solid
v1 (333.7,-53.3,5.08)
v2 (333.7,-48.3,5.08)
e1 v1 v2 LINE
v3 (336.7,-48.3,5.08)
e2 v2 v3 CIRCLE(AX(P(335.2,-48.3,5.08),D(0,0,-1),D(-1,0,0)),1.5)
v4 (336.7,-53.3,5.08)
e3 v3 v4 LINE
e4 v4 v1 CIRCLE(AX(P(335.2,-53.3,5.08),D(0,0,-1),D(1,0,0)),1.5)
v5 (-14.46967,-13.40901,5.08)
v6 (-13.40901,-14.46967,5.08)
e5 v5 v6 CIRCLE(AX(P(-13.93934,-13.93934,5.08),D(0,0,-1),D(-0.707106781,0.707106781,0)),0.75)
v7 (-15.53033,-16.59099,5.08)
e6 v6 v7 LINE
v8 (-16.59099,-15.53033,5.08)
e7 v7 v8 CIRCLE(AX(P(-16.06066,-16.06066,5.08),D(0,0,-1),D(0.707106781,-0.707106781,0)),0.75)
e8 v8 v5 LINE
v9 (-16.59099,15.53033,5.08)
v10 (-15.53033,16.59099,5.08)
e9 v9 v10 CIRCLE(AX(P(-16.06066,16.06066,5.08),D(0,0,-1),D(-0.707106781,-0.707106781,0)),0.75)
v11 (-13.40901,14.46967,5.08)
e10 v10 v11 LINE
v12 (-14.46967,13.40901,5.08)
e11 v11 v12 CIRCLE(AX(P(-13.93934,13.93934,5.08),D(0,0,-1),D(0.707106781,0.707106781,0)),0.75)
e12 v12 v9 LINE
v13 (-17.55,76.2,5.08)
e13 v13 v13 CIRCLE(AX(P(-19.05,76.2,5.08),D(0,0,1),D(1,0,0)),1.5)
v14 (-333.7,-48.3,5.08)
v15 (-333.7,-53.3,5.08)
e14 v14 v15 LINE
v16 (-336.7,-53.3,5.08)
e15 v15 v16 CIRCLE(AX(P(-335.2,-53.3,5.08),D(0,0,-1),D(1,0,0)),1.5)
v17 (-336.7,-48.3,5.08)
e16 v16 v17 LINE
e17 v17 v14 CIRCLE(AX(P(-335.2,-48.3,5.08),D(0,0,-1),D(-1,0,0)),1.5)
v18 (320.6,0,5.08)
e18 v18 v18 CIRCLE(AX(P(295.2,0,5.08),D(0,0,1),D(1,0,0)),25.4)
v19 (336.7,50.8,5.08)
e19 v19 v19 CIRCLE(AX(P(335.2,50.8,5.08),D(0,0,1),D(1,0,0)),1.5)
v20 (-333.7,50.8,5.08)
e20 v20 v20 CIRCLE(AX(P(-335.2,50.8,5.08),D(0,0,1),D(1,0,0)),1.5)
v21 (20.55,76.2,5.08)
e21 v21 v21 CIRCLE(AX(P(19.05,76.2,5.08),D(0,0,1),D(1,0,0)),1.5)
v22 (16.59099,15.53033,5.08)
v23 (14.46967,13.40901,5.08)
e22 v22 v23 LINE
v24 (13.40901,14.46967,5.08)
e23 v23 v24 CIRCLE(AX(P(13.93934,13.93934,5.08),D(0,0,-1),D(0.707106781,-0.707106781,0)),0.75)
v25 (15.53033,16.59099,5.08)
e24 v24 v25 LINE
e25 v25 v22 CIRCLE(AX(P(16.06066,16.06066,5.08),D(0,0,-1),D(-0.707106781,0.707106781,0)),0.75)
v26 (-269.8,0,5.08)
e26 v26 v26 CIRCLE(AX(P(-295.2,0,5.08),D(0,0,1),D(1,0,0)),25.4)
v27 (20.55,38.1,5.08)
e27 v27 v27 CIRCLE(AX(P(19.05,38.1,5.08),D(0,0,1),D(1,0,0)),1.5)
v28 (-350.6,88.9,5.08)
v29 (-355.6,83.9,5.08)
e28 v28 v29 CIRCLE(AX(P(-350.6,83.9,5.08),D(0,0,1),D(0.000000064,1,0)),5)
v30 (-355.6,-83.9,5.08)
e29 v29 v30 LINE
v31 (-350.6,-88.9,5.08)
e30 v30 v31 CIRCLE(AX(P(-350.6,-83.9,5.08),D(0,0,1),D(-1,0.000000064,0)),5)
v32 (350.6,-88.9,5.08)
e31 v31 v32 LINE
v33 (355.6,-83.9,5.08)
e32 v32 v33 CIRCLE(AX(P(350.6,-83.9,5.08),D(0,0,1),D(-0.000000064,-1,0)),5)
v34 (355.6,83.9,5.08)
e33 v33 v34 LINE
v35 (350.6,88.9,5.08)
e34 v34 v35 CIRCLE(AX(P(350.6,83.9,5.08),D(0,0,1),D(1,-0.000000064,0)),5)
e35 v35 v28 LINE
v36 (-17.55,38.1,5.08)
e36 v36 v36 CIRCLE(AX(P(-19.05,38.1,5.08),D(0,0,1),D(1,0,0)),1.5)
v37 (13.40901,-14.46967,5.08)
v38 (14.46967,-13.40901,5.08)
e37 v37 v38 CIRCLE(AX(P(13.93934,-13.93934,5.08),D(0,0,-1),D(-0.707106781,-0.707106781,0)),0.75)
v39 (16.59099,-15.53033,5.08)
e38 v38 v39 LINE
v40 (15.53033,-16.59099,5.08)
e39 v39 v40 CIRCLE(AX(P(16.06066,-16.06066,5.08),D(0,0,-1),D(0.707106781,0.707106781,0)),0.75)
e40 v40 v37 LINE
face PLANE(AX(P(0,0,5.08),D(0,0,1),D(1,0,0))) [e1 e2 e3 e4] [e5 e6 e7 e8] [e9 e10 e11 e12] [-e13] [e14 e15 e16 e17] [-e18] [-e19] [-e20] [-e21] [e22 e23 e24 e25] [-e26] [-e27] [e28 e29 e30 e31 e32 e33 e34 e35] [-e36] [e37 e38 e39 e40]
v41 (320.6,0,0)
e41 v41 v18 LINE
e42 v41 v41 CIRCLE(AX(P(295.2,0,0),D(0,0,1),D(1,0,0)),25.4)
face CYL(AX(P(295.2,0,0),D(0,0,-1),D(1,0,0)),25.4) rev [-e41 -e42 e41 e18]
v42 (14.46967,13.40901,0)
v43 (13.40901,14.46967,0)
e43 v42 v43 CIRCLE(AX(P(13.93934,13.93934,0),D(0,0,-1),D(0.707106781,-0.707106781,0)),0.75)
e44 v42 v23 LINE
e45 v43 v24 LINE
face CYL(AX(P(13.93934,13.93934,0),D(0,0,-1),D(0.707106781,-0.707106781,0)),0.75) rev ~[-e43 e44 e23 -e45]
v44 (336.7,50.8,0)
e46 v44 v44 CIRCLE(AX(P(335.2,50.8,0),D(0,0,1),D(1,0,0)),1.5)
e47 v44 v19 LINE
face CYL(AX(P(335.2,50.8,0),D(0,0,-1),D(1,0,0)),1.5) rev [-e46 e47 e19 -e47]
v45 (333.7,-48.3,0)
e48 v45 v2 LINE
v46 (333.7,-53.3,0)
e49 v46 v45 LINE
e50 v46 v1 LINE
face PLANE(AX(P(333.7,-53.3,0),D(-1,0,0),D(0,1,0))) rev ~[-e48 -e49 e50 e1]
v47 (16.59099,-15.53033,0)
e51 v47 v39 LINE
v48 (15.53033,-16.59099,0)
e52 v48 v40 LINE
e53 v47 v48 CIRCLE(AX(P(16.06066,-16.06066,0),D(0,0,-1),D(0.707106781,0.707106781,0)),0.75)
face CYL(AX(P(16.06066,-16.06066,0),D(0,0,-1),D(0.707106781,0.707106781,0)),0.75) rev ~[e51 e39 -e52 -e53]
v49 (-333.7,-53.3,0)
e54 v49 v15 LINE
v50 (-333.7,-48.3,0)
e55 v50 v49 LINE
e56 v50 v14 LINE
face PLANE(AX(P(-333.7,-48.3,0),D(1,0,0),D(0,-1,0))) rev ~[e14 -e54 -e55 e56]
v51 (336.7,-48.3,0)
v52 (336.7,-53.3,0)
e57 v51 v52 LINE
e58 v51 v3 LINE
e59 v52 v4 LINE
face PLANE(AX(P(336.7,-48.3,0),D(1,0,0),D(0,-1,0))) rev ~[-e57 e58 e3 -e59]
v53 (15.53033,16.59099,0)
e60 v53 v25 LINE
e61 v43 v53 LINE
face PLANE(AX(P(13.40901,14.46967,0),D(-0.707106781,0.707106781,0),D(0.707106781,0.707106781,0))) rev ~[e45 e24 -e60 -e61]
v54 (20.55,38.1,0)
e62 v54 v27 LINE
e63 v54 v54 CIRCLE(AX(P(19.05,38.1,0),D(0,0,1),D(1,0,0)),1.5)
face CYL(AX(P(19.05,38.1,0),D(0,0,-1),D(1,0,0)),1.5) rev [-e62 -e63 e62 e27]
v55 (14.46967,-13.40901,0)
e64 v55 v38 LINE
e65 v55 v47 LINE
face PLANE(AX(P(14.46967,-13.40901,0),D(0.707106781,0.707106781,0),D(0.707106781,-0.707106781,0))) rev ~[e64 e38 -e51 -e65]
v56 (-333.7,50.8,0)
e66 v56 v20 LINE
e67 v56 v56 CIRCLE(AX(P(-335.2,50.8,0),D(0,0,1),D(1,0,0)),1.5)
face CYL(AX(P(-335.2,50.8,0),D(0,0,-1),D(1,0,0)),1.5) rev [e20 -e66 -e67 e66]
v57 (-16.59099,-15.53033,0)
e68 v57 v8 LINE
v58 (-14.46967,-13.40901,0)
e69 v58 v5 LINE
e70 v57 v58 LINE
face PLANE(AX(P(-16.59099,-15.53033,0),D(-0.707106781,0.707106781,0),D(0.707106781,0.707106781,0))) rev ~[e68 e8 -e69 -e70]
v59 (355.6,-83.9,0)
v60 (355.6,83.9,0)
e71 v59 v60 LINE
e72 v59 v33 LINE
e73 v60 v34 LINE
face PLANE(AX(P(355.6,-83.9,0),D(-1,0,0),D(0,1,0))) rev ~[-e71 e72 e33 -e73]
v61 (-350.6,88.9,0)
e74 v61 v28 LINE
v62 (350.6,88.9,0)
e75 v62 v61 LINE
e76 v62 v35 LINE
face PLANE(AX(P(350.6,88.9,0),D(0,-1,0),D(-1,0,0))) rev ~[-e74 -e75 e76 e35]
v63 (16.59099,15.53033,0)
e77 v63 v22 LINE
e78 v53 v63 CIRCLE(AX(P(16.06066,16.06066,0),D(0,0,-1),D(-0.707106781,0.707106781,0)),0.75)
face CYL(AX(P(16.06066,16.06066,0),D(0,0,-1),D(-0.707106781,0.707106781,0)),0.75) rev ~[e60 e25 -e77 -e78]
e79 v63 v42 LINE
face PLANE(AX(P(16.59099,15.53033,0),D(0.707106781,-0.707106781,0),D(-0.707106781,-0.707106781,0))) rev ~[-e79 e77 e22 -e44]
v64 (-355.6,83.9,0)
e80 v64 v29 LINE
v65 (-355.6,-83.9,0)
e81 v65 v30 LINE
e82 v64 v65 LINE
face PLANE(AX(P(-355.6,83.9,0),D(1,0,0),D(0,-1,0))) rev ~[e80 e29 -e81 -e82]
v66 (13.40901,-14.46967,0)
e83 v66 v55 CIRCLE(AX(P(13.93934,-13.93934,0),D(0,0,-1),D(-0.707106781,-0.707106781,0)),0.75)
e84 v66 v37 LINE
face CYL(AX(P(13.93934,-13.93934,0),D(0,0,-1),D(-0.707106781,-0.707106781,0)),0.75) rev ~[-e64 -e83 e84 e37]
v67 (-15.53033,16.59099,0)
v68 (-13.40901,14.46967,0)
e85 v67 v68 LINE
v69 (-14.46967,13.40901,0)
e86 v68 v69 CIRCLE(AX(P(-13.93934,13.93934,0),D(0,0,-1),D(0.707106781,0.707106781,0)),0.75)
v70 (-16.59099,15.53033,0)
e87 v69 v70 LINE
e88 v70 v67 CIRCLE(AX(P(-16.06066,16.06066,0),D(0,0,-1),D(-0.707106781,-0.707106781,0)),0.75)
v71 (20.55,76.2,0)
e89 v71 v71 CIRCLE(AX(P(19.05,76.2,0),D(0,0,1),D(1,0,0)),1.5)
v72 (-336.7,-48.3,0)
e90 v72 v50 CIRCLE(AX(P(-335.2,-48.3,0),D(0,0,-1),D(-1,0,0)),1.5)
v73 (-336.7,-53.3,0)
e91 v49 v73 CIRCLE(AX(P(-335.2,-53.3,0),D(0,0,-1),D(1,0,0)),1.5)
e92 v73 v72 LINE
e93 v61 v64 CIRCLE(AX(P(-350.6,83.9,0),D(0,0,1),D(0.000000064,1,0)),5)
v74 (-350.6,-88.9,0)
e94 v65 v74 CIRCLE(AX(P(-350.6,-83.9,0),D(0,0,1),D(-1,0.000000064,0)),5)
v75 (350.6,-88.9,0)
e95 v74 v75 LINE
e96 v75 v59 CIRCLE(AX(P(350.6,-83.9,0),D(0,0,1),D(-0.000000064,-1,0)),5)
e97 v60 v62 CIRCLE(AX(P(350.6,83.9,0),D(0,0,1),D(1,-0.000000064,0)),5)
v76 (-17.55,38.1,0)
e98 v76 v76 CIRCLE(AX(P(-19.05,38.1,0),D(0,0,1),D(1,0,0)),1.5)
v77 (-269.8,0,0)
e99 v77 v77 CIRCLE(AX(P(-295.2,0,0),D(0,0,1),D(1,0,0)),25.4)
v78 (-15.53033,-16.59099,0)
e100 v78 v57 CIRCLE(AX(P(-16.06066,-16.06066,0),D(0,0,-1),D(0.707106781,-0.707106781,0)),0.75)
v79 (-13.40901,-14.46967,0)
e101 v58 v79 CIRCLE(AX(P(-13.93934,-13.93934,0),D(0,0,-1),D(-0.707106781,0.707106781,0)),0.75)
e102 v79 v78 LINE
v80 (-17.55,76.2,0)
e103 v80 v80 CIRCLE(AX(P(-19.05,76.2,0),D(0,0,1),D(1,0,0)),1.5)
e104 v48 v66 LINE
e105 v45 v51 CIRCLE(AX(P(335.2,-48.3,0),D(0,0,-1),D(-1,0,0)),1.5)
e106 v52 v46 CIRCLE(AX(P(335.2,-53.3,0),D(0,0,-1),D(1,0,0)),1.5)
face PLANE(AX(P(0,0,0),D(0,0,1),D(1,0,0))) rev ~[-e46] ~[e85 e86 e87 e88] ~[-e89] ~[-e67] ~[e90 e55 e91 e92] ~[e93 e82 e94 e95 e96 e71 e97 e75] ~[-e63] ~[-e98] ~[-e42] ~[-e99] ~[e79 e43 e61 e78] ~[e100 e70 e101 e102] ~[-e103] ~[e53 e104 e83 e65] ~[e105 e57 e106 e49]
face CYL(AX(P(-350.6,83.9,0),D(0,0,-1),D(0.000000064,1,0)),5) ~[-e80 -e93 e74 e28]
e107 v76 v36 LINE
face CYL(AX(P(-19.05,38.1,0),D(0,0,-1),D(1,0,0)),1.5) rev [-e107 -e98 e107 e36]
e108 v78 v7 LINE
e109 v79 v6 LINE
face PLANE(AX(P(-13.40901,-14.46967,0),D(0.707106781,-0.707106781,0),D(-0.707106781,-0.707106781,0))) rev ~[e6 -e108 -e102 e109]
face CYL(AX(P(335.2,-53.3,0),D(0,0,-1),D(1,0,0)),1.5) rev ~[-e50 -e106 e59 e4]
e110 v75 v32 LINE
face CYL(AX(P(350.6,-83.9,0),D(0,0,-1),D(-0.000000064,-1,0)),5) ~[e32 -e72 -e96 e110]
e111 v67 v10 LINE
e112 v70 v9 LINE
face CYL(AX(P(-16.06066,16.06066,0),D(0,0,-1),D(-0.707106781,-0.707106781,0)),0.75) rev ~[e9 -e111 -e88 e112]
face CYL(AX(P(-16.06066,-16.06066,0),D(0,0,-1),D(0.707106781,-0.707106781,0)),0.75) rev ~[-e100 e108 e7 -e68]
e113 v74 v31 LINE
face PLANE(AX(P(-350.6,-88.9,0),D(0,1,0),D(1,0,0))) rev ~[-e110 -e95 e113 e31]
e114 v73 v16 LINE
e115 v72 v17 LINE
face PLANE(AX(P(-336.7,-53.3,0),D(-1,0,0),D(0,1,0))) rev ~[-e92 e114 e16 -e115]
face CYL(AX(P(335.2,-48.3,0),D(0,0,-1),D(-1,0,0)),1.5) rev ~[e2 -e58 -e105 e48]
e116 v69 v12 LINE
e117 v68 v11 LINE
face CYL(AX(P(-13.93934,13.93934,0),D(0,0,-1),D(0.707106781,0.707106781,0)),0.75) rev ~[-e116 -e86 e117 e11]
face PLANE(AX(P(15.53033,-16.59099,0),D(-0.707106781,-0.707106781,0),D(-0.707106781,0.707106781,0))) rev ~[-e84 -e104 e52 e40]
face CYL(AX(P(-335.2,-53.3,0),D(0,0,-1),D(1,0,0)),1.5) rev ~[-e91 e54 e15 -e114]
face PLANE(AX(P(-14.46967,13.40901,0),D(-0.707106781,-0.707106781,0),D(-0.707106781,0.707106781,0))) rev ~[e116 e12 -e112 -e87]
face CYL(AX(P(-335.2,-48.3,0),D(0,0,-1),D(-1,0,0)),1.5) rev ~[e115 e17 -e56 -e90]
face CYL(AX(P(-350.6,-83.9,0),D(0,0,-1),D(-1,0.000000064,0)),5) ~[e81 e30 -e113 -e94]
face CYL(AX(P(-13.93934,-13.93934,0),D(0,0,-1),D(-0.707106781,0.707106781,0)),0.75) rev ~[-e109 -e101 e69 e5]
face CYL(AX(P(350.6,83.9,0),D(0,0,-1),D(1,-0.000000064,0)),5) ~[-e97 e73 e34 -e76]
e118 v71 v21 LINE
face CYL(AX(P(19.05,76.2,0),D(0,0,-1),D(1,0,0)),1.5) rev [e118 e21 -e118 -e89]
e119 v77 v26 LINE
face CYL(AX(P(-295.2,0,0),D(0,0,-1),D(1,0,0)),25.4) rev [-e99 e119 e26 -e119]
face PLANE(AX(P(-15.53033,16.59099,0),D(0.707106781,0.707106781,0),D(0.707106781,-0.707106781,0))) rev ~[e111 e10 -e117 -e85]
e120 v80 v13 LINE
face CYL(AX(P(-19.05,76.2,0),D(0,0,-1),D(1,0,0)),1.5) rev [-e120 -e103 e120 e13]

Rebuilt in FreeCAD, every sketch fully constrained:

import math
import FreeCAD as App
import Part
import Sketcher
Q = App.Units.Quantity

doc = App.newDocument("Part")
body = doc.addObject("PartDesign::Body", "Body")

sketch1 = doc.addObject("Sketcher::SketchObject", "Sketch")
body.addObject(sketch1)
sketch1.AttachmentSupport = (doc.XY_Plane, [""])
sketch1.MapMode = "FlatFace"
sketch1.addGeometry([
    Part.ArcOfCircle(Part.Circle(App.Vector(350.6, 83.9, 0), App.Vector(0, 0, 1), 5), math.radians(0), math.radians(90)),
    Part.LineSegment(App.Vector(350.6, 88.9, 0), App.Vector(-350.6, 88.9, 0)),
    Part.ArcOfCircle(Part.Circle(App.Vector(-350.6, 83.9, 0), App.Vector(0, 0, 1), 5), math.radians(90), math.radians(180)),
    Part.LineSegment(App.Vector(-355.6, 83.9, 0), App.Vector(-355.6, -83.9, 0)),
    Part.ArcOfCircle(Part.Circle(App.Vector(-350.6, -83.9, 0), App.Vector(0, 0, 1), 5), math.radians(180), math.radians(270)),
    Part.LineSegment(App.Vector(-350.6, -88.9, 0), App.Vector(350.6, -88.9, 0)),
    Part.ArcOfCircle(Part.Circle(App.Vector(350.6, -83.9, 0), App.Vector(0, 0, 1), 5), math.radians(-90), math.radians(0)),
    Part.LineSegment(App.Vector(355.6, -83.9, 0), App.Vector(355.6, 83.9, 0)),
    Part.LineSegment(App.Vector(-333.7, -48.3, 0), App.Vector(-333.7, -53.3, 0)),
    Part.ArcOfCircle(Part.Circle(App.Vector(-335.2, -53.3, 0), App.Vector(0, 0, 1), 1.5), math.radians(180), math.radians(360)),
    Part.LineSegment(App.Vector(-336.7, -53.3, 0), App.Vector(-336.7, -48.3, 0)),
    Part.ArcOfCircle(Part.Circle(App.Vector(-335.2, -48.3, 0), App.Vector(0, 0, 1), 1.5), math.radians(0), math.radians(180)),
    Part.Circle(App.Vector(-295.2, 0, 0), App.Vector(0, 0, 1), 25.4),
    Part.LineSegment(App.Vector(-13.4, -14.5, 0), App.Vector(-15.5, -16.6, 0)),
    Part.ArcOfCircle(Part.Circle(App.Vector(-16.1, -16.1, 0), App.Vector(0, 0, 1), 0.7), math.radians(135), math.radians(315)),
    Part.LineSegment(App.Vector(-16.6, -15.5, 0), App.Vector(-14.5, -13.4, 0)),
    Part.ArcOfCircle(Part.Circle(App.Vector(-13.9, -13.9, 0), App.Vector(0, 0, 1), 0.7), math.radians(-45), math.radians(135)),
    Part.ArcOfCircle(Part.Circle(App.Vector(335.2, -53.3, 0), App.Vector(0, 0, 1), 1.5), math.radians(180), math.radians(360)),
    Part.LineSegment(App.Vector(333.7, -53.3, 0), App.Vector(333.7, -48.3, 0)),
    Part.ArcOfCircle(Part.Circle(App.Vector(335.2, -48.3, 0), App.Vector(0, 0, 1), 1.5), math.radians(0), math.radians(180)),
    Part.LineSegment(App.Vector(336.7, -48.3, 0), App.Vector(336.7, -53.3, 0)),
    Part.LineSegment(App.Vector(14.5, -13.4, 0), App.Vector(16.6, -15.5, 0)),
    Part.ArcOfCircle(Part.Circle(App.Vector(16.1, -16.1, 0), App.Vector(0, 0, 1), 0.7), math.radians(-135), math.radians(45)),
    Part.LineSegment(App.Vector(15.5, -16.6, 0), App.Vector(13.4, -14.5, 0)),
    Part.ArcOfCircle(Part.Circle(App.Vector(13.9, -13.9, 0), App.Vector(0, 0, 1), 0.7), math.radians(45), math.radians(225)),
    Part.Circle(App.Vector(295.2, 0, 0), App.Vector(0, 0, 1), 25.4),
    Part.LineSegment(App.Vector(-15.5, 16.6, 0), App.Vector(-13.4, 14.5, 0)),
    Part.ArcOfCircle(Part.Circle(App.Vector(-13.9, 13.9, 0), App.Vector(0, 0, 1), 0.7), math.radians(-135), math.radians(45)),
    Part.LineSegment(App.Vector(-14.5, 13.4, 0), App.Vector(-16.6, 15.5, 0)),
    Part.ArcOfCircle(Part.Circle(App.Vector(-16.1, 16.1, 0), App.Vector(0, 0, 1), 0.7), math.radians(45), math.radians(225)),
    Part.Circle(App.Vector(-19.1, 38.1, 0), App.Vector(0, 0, 1), 1.5),
    Part.Circle(App.Vector(-335.2, 50.8, 0), App.Vector(0, 0, 1), 1.5),
    Part.Circle(App.Vector(-19.1, 76.2, 0), App.Vector(0, 0, 1), 1.5),
    Part.LineSegment(App.Vector(16.6, 15.5, 0), App.Vector(14.5, 13.4, 0)),
    Part.ArcOfCircle(Part.Circle(App.Vector(13.9, 13.9, 0), App.Vector(0, 0, 1), 0.7), math.radians(135), math.radians(315)),
    Part.LineSegment(App.Vector(13.4, 14.5, 0), App.Vector(15.5, 16.6, 0)),
    Part.ArcOfCircle(Part.Circle(App.Vector(16.1, 16.1, 0), App.Vector(0, 0, 1), 0.7), math.radians(-45), math.radians(135)),
    Part.Circle(App.Vector(19.1, 38.1, 0), App.Vector(0, 0, 1), 1.5),
    Part.Circle(App.Vector(19.1, 76.2, 0), App.Vector(0, 0, 1), 1.5),
    Part.Circle(App.Vector(335.2, 50.8, 0), App.Vector(0, 0, 1), 1.5),
], False)
sketch1.addConstraint([
    Sketcher.Constraint("Tangent", 0, 2, 1, 1),
    Sketcher.Constraint("Tangent", 1, 2, 2, 1),
    Sketcher.Constraint("Tangent", 2, 2, 3, 1),
    Sketcher.Constraint("Tangent", 3, 2, 4, 1),
    Sketcher.Constraint("Tangent", 4, 2, 5, 1),
    Sketcher.Constraint("Tangent", 5, 2, 6, 1),
    Sketcher.Constraint("Tangent", 6, 2, 7, 1),
    Sketcher.Constraint("Tangent", 7, 2, 0, 1),
    Sketcher.Constraint("Tangent", 8, 2, 9, 2),
    Sketcher.Constraint("Tangent", 9, 1, 10, 1),
    Sketcher.Constraint("Tangent", 10, 2, 11, 2),
    Sketcher.Constraint("Tangent", 11, 1, 8, 1),
    Sketcher.Constraint("Tangent", 13, 2, 14, 2),
    Sketcher.Constraint("Tangent", 14, 1, 15, 1),
    Sketcher.Constraint("Tangent", 15, 2, 16, 2),
    Sketcher.Constraint("Tangent", 16, 1, 13, 1),
    Sketcher.Constraint("Tangent", 17, 1, 18, 1),
    Sketcher.Constraint("Tangent", 18, 2, 19, 2),
    Sketcher.Constraint("Tangent", 19, 1, 20, 1),
    Sketcher.Constraint("Tangent", 20, 2, 17, 2),
    Sketcher.Constraint("Tangent", 21, 2, 22, 2),
    Sketcher.Constraint("Tangent", 22, 1, 23, 1),
    Sketcher.Constraint("Tangent", 23, 2, 24, 2),
    Sketcher.Constraint("Tangent", 24, 1, 21, 1),
    Sketcher.Constraint("Tangent", 26, 2, 27, 2),
    Sketcher.Constraint("Tangent", 27, 1, 28, 1),
    Sketcher.Constraint("Tangent", 28, 2, 29, 2),
    Sketcher.Constraint("Tangent", 29, 1, 26, 1),
    Sketcher.Constraint("Tangent", 33, 2, 34, 2),
    Sketcher.Constraint("Tangent", 34, 1, 35, 1),
    Sketcher.Constraint("Tangent", 35, 2, 36, 2),
    Sketcher.Constraint("Tangent", 36, 1, 33, 1),
    Sketcher.Constraint("Horizontal", 1),
    Sketcher.Constraint("Vertical", 3),
    Sketcher.Constraint("Horizontal", 5),
    Sketcher.Constraint("Vertical", 7),
    Sketcher.Constraint("Vertical", 8),
    Sketcher.Constraint("Vertical", 10),
    Sketcher.Constraint("Vertical", 18),
    Sketcher.Constraint("Vertical", 20),
    Sketcher.Constraint("Equal", 0, 2),
    Sketcher.Constraint("Equal", 2, 4),
    Sketcher.Constraint("Equal", 4, 6),
    Sketcher.Constraint("Equal", 14, 16),
    Sketcher.Constraint("Equal", 11, 17),
    Sketcher.Constraint("Equal", 16, 22),
    Sketcher.Constraint("Equal", 22, 24),
    Sketcher.Constraint("Equal", 12, 25),
    Sketcher.Constraint("Equal", 24, 27),
    Sketcher.Constraint("Equal", 27, 29),
    Sketcher.Constraint("Equal", 19, 30),
    Sketcher.Constraint("Equal", 30, 31),
    Sketcher.Constraint("Equal", 31, 32),
    Sketcher.Constraint("Equal", 29, 34),
    Sketcher.Constraint("Equal", 34, 36),
    Sketcher.Constraint("Equal", 32, 37),
    Sketcher.Constraint("Equal", 37, 38),
    Sketcher.Constraint("Equal", 38, 39),
    Sketcher.Constraint("Symmetric", 0, 3, 4, 3, -1, 1),
    Sketcher.Constraint("Symmetric", 12, 3, 25, 3, -1, 1),
    Sketcher.Constraint("Symmetric", 24, 3, 27, 3, -1, 1),
    Sketcher.Constraint("Symmetric", 22, 3, 29, 3, -1, 1),
    Sketcher.Constraint("Symmetric", 16, 3, 34, 3, -1, 1),
    Sketcher.Constraint("Symmetric", 14, 3, 36, 3, -1, 1),
    Sketcher.Constraint("Symmetric", 9, 3, 17, 3, -2),
    Sketcher.Constraint("Symmetric", 14, 3, 22, 3, -2),
    Sketcher.Constraint("Symmetric", 16, 3, 24, 3, -2),
    Sketcher.Constraint("Symmetric", 30, 3, 37, 3, -2),
    Sketcher.Constraint("Symmetric", 32, 3, 38, 3, -2),
    Sketcher.Constraint("Symmetric", 31, 3, 39, 3, -2),
    Sketcher.Constraint("PointOnObject", 12, 3, -1),
    Sketcher.Constraint("Perpendicular", 15, 21),
    Sketcher.Constraint("Horizontal", 11, 3, 19, 3),
    Sketcher.Constraint("Vertical", 11, 3, 31, 3),
    Sketcher.Constraint("Vertical", 30, 3, 32, 3),
    Sketcher.Constraint("Diameter", 30, Q("3 mm")),
    Sketcher.Constraint("Radius", 0, Q("5 mm")),
    Sketcher.Constraint("Diameter", 12, Q("50.8 mm")),
    Sketcher.Constraint("DistanceY", 8, 2, 8, 1, Q("5 mm")),
    Sketcher.Constraint("Radius", 14, Q("0.75 mm")),
    Sketcher.Constraint("Distance", 13, Q("3 mm")),
    Sketcher.Constraint("DistanceX", 1, 2, 1, 1, Q("701.2 mm")),
    Sketcher.Constraint("DistanceY", 3, 2, 3, 1, Q("167.8 mm")),
    Sketcher.Constraint("DistanceX", 11, 3, 12, 3, Q("40 mm")),
    Sketcher.Constraint("DistanceX", 16, 3, 22, 3, Q("30 mm")),
    Sketcher.Constraint("DistanceY", 14, 3, 27, 3, Q("30 mm")),
    Sketcher.Constraint("DistanceX", 9, 3, -1, 1, Q("335.2 mm")),
    Sketcher.Constraint("DistanceY", 9, 3, -1, 1, Q("53.3 mm")),
    Sketcher.Constraint("DistanceY", -1, 1, 30, 3, Q("38.1 mm")),
    Sketcher.Constraint("DistanceY", -1, 1, 31, 3, Q("50.8 mm")),
    Sketcher.Constraint("DistanceY", -1, 1, 32, 3, Q("76.2 mm")),
    Sketcher.Constraint("DistanceX", 30, 3, 37, 3, Q("38.1 mm")),
])
pad1 = doc.addObject("PartDesign::Pad", "Pad")
body.addObject(pad1)
pad1.Profile = sketch1
pad1.Length = 5.08

doc.recompute()
